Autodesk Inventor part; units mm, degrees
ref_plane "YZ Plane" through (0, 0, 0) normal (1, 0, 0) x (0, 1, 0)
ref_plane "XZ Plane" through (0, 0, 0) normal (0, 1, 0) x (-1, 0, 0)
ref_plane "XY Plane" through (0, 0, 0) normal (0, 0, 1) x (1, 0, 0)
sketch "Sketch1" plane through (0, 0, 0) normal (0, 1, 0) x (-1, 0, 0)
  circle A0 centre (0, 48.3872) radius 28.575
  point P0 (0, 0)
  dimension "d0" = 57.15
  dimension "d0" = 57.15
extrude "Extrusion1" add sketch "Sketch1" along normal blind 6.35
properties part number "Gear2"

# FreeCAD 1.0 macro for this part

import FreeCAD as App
import Part
import Sketcher
from FreeCAD import Vector
Q = App.Units.Quantity

doc = App.newDocument("Part")
body = doc.addObject("PartDesign::Body", "Body")

# Sketch on XZ plane
sketch1 = doc.addObject("Sketcher::SketchObject", "Sketch")
body.addObject(sketch1)
sketch1.AttachmentSupport = (doc.XZ_Plane, [""])
sketch1.MapMode = "FlatFace"
sketch1.addGeometry(Part.Circle(Vector(0, 48.3872, 0), Vector(0, 0, 1), 28.575), False)
sketch1.addConstraint(Sketcher.Constraint("PointOnObject", 0, 3, -2))
sketch1.addConstraint(Sketcher.Constraint("Diameter", 0, Q("2.25 in")))
sketch1.addConstraint(Sketcher.Constraint("DistanceY", -1, 1, 0, 3, Q("1.905 in")))
pad1 = doc.addObject("PartDesign::Pad", "Pad")
body.addObject(pad1)
pad1.Profile = sketch1
pad1.Length = Q("0.25 in")
pad1.Reversed = True

doc.recompute()
